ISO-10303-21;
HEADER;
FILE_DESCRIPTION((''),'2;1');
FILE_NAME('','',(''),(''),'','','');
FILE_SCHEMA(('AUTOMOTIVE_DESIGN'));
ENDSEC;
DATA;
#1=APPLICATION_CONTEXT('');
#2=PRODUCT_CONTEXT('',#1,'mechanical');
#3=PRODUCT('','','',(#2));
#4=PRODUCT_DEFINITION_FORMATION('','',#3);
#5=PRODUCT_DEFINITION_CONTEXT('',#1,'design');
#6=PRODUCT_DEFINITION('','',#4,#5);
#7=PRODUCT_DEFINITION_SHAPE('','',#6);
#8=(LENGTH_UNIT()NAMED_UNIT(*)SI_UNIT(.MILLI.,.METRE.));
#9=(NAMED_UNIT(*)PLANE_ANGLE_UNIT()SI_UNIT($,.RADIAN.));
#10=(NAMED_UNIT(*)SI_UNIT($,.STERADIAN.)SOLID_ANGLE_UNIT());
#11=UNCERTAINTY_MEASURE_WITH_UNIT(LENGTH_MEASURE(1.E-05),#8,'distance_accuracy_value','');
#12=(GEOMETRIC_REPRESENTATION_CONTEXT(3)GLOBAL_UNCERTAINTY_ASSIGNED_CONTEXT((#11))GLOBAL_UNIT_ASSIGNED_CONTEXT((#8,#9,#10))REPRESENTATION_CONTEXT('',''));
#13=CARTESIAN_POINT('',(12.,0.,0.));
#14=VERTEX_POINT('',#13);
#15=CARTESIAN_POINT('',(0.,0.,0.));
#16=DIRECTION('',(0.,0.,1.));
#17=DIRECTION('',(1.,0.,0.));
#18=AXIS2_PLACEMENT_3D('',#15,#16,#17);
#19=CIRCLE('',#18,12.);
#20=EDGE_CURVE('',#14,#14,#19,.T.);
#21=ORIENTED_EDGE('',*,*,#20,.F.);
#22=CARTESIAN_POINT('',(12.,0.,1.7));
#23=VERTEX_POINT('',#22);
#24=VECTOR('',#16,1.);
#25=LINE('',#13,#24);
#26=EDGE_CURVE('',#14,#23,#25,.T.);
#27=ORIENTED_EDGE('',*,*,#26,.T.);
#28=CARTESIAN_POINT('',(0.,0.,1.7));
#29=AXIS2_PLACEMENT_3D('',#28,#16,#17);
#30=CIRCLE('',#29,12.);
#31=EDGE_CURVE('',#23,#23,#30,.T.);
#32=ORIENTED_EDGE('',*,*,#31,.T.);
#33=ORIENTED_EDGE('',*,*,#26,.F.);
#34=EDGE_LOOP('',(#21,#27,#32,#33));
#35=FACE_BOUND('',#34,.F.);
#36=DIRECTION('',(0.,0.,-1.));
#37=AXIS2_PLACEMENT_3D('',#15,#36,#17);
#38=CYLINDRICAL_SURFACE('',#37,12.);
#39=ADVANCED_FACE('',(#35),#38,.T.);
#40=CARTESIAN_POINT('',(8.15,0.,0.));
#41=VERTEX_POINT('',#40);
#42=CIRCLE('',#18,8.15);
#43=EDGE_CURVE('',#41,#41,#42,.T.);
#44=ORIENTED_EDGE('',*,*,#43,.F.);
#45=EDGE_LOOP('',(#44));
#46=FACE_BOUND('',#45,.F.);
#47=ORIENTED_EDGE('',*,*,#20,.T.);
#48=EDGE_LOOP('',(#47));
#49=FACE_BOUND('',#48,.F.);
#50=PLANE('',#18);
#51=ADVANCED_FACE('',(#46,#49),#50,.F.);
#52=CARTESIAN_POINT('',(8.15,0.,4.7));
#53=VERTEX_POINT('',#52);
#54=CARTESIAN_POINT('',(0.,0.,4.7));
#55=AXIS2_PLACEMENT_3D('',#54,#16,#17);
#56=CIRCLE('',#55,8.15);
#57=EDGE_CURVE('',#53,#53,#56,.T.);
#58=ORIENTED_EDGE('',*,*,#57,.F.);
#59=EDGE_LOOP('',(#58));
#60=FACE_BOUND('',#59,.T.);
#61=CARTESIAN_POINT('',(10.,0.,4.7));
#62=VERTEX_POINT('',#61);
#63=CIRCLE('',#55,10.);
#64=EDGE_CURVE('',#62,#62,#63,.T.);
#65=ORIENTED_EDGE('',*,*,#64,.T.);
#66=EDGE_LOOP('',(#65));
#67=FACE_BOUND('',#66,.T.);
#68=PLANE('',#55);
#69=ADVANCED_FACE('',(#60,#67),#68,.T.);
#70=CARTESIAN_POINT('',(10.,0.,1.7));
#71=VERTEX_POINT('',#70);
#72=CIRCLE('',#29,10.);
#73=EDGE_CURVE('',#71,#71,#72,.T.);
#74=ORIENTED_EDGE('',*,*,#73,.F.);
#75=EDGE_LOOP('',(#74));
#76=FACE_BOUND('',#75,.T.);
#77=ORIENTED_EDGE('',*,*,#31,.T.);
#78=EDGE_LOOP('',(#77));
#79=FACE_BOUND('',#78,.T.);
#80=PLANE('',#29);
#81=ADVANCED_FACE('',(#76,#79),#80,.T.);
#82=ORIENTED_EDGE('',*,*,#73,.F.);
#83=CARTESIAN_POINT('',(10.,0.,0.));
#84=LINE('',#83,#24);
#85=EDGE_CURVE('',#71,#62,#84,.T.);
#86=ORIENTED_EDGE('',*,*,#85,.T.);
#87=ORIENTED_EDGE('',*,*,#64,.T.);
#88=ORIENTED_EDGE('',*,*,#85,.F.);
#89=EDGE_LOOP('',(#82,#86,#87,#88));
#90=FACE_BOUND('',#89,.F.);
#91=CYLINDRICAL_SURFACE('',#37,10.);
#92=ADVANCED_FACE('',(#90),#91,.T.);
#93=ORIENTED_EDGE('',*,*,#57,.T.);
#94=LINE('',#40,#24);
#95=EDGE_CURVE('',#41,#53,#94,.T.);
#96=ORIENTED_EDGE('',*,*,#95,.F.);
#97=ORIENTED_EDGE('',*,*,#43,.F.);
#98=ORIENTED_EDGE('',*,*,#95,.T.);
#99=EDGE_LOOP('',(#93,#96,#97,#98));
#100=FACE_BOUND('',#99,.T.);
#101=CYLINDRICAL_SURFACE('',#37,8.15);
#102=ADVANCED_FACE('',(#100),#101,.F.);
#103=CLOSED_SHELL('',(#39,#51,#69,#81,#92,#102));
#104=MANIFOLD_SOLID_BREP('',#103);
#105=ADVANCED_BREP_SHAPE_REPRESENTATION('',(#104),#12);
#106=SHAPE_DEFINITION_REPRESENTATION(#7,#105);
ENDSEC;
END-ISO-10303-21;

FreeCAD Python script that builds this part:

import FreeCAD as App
import Part
import Sketcher
from FreeCAD import Vector

doc = App.newDocument("Part")
params = doc.addObject("Spreadsheet::Sheet", "Params")
for row, (alias, value) in enumerate([
    ("sketch1_diameter", "20 mm"),
    ("sketch1_diameter2", "16.3 mm"),
    ("pad1_length", "4.7 mm"),
    ("sketch2_diameter", "24 mm"),
    ("sketch2_diameter2", "20 mm"),
    ("pad2_length", "1.7 mm"),
], start=1):
    params.set(f"A{row}", alias)
    params.set(f"B{row}", "=" + value)
    params.setAlias(f"B{row}", alias)

body = doc.addObject("PartDesign::Body", "Body")

sketch1 = body.newObject("Sketcher::SketchObject", "Sketch")
sketch1.AttachmentSupport = (doc.getObject("XY_Plane"), [""])
sketch1.MapMode = "FlatFace"
sketch1.addGeometry([
    Part.Circle(Vector(0, 0, 0), Vector(0, 0, 1), 10),
    Part.Circle(Vector(0, 0, 0), Vector(0, 0, 1), 8),
], False)
sketch1.addConstraint([
    Sketcher.Constraint("Coincident", 0, 3, -1, 1),
    Sketcher.Constraint("Coincident", 1, 3, -1, 1),
    Sketcher.Constraint("Diameter", 0, 20.0),
    Sketcher.Constraint("Diameter", 1, 16.3),
])
sketch1.setExpression("Constraints[2]", "Params.sketch1_diameter")
sketch1.setExpression("Constraints[3]", "Params.sketch1_diameter2")
pad1 = body.newObject("PartDesign::Pad", "Pad")
pad1.Profile = sketch1
pad1.setExpression("Length", "Params.pad1_length")

sketch2 = body.newObject("Sketcher::SketchObject", "Sketch001")
sketch2.AttachmentSupport = (doc.getObject("XY_Plane"), [""])
sketch2.MapMode = "FlatFace"
sketch2.addGeometry([
    Part.Circle(Vector(0, 0, 0), Vector(0, 0, 1), 12),
    Part.Circle(Vector(0, 0, 0), Vector(0, 0, 1), 10),
], False)
sketch2.addConstraint([
    Sketcher.Constraint("Coincident", 0, 3, -1, 1),
    Sketcher.Constraint("Coincident", 1, 3, -1, 1),
    Sketcher.Constraint("Diameter", 0, 24.0),
    Sketcher.Constraint("Diameter", 1, 20.0),
])
sketch2.setExpression("Constraints[2]", "Params.sketch2_diameter")
sketch2.setExpression("Constraints[3]", "Params.sketch2_diameter2")
pad2 = body.newObject("PartDesign::Pad", "Pad001")
pad2.Profile = sketch2
pad2.setExpression("Length", "Params.pad2_length")

doc.recompute()
